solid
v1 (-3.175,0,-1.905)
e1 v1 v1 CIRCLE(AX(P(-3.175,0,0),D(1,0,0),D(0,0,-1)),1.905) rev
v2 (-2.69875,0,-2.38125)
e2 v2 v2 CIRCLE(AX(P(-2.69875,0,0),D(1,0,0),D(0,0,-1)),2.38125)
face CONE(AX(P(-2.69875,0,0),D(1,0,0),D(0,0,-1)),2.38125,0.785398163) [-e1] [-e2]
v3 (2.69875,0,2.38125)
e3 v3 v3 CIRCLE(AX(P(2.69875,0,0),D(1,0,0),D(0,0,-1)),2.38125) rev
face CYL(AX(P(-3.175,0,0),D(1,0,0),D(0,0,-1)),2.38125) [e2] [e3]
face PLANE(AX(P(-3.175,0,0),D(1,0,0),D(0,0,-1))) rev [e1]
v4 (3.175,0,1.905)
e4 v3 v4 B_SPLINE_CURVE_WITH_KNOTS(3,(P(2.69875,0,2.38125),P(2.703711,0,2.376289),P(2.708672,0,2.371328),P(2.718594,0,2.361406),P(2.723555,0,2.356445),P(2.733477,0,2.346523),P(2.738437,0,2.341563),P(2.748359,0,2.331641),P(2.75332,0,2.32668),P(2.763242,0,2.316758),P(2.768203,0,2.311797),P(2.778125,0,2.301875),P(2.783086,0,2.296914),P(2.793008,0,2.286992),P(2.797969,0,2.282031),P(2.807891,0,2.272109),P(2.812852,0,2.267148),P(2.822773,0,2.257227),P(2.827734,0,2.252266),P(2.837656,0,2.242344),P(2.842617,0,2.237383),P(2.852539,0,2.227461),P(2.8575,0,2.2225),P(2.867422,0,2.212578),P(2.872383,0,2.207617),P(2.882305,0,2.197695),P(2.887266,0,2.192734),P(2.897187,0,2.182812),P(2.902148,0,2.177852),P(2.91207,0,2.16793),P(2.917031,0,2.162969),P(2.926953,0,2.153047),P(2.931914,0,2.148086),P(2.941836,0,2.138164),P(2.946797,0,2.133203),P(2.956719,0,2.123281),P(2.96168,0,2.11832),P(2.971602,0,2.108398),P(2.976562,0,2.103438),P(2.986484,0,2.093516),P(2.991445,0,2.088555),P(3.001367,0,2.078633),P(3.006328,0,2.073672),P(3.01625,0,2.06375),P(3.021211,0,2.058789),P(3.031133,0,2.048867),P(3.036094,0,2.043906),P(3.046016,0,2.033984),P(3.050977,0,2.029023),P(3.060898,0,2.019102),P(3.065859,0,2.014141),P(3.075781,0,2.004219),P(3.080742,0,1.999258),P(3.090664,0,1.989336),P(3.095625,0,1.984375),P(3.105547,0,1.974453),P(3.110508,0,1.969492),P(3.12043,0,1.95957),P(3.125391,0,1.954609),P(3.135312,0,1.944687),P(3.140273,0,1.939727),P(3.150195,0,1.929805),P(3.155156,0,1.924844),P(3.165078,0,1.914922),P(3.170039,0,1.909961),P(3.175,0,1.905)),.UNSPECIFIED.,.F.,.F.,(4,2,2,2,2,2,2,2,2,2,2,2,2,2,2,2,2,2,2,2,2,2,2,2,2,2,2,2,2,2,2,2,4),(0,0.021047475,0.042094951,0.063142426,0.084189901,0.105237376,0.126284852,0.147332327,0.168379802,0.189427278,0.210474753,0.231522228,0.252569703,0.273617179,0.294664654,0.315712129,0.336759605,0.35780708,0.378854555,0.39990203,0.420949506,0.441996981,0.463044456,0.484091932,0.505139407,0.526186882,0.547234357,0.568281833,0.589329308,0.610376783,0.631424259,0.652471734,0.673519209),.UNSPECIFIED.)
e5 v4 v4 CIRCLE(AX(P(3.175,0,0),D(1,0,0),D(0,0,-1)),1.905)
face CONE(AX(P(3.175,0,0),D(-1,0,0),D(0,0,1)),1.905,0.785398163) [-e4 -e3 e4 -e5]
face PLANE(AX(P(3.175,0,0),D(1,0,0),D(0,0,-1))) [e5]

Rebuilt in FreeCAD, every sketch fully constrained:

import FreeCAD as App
import Part
import Sketcher

V = App.Vector
Q = App.Units.Quantity


def edges_at(feature, points):
    """Names of the edges that pass closest to the given points."""
    edges = feature.Shape.Edges
    near = lambda p: min(range(len(edges)), key=lambda i: edges[i].distToShape(Part.Vertex(*p))[0])
    return sorted({f"Edge{near(p) + 1}" for p in points})

doc = App.newDocument("Part")
body = doc.addObject("PartDesign::Body", "Body")

# Sketch on YZ plane
sketch1 = body.newObject("Sketcher::SketchObject", "Sketch")
sketch1.AttachmentSupport = (doc.getObject("YZ_Plane"), [""])
sketch1.MapMode = "FlatFace"
sketch1.addGeometry(Part.Circle(V(0, 0, 0), V(0, 0, 1), 2.38125), False)
sketch1.addConstraint(Sketcher.Constraint("Coincident", 0, 3, -1, 1))
sketch1.addConstraint(Sketcher.Constraint("Diameter", 0, Q("0.1875 in")))
pad1 = body.newObject("PartDesign::Pad", "Pad")
pad1.Profile = sketch1
pad1.Type = "TwoLengths"
pad1.Length = Q("0.125 in")
pad1.Length2 = Q("0.125 in")
doc.recompute()

chamfer = body.newObject("PartDesign::Chamfer", "Chamfer")
chamfer.Base = (pad1, edges_at(pad1, [(-3.175, 0, 2.381), (3.175, 0, 2.381)]))
chamfer.Size = 0.47625

doc.recompute()
